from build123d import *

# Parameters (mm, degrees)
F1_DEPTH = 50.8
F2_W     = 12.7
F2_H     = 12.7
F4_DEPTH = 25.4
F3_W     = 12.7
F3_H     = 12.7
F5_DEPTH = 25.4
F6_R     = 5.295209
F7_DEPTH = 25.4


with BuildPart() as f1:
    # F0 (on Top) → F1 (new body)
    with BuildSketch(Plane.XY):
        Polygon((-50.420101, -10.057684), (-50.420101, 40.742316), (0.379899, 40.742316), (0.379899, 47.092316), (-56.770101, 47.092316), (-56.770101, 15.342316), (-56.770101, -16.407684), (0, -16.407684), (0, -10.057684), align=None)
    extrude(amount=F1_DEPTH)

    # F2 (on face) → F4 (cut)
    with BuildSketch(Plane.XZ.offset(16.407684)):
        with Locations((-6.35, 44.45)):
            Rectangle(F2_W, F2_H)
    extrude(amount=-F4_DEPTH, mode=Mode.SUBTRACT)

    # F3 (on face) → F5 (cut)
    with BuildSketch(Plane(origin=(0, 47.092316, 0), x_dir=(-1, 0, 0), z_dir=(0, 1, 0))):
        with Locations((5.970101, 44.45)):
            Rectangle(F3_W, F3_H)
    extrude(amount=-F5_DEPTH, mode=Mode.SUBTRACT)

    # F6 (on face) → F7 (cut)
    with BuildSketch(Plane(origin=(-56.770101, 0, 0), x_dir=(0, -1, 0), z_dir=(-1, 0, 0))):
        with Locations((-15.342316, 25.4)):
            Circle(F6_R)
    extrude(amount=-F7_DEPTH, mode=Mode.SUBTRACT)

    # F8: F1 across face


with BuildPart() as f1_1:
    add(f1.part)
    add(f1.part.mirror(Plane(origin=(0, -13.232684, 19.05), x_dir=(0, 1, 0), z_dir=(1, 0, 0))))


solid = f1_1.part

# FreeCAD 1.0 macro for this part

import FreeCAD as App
import Part
import Sketcher

V = App.Vector
Q = App.Units.Quantity


def add_polygon(sketch, points):
    """Adds a closed chain of lines whose ends are joined by coincident constraints."""
    first, n = sketch.GeometryCount, len(points)
    for a, b in zip(points, points[1:] + points[:1]):
        sketch.addGeometry(Part.LineSegment(App.Vector(*a, 0), App.Vector(*b, 0)), False)
    for i in range(n):
        sketch.addConstraint(Sketcher.Constraint("Coincident", first + i, 2, first + (i + 1) % n, 1))

doc = App.newDocument("Part")
body = doc.addObject("PartDesign::Body", "Body")

sketch1 = body.newObject("Sketcher::SketchObject", "Sketch")
sketch1.AttachmentSupport = (doc.getObject("XY_Plane"), [""])
sketch1.MapMode = "FlatFace"
add_polygon(sketch1, [(-50.420101, -10.057684), (-50.420101, 40.742316), (0.379899, 40.742316), (0.379899, 47.092316), (-56.770101, 47.092316), (-56.770101, -16.407684), (0, -16.407684), (0, -10.057684)])
sketch1.addConstraint([
    Sketcher.Constraint("Vertical", 0),
    Sketcher.Constraint("Horizontal", 1),
    Sketcher.Constraint("Vertical", 2),
    Sketcher.Constraint("Horizontal", 3),
    Sketcher.Constraint("Vertical", 4),
    Sketcher.Constraint("Horizontal", 5),
    Sketcher.Constraint("Vertical", 6),
    Sketcher.Constraint("Horizontal", 7),
    Sketcher.Constraint("PointOnObject", 5, 2, -2),
    Sketcher.Constraint("Equal", 1, 0),
    Sketcher.Constraint("Equal", 2, 6),
    Sketcher.Constraint("DistanceX", 1, 1, 1, 2, Q("2 in")),
    Sketcher.Constraint("DistanceY", 4, 2, 4, 1, Q("2.5 in")),
    Sketcher.Constraint("DistanceX", 3, 2, 3, 1, Q("2.25 in")),
    Sketcher.Constraint("DistanceX", 5, 1, 5, 2, 56.770101),
    Sketcher.Constraint("DistanceY", -1, 1, 0, 2, 40.742316),
])
pad1 = body.newObject("PartDesign::Pad", "Pad")
pad1.Profile = sketch1
pad1.Length = Q("2 in")

sketch2 = body.newObject("Sketcher::SketchObject", "Sketch001")
sketch2.AttachmentSupport = (doc.getObject("XZ_Plane"), [""])
sketch2.MapMode = "FlatFace"
sketch2.AttachmentOffset = App.Placement(V(0, 0, 16.407684), App.Rotation())
add_polygon(sketch2, [(-12.7, 50.8), (-12.7, 38.1), (0, 38.1), (0, 50.8)])
sketch2.addConstraint([
    Sketcher.Constraint("Vertical", 0),
    Sketcher.Constraint("Horizontal", 1),
    Sketcher.Constraint("Vertical", 2),
    Sketcher.Constraint("Horizontal", 3),
    Sketcher.Constraint("PointOnObject", 1, 2, -2),
    Sketcher.Constraint("Equal", 3, 0),
    Sketcher.Constraint("DistanceX", 1, 1, 1, 2, Q("0.5 in")),
    Sketcher.Constraint("DistanceY", -1, 1, 2, 2, Q("2 in")),
])
pocket1 = body.newObject("PartDesign::Pocket", "Pocket")
pocket1.Profile = sketch2
pocket1.Length = Q("1 in")

sketch3 = body.newObject("Sketcher::SketchObject", "Sketch002")
sketch3.AttachmentSupport = (doc.getObject("XZ_Plane"), [""])
sketch3.MapMode = "FlatFace"
sketch3.AttachmentOffset = App.Placement(V(0, 0, -47.092316), App.Rotation())
add_polygon(sketch3, [(0.379899, 50.8), (0.379899, 38.1), (-12.320101, 38.1), (-12.320101, 50.8)])
sketch3.addConstraint([
    Sketcher.Constraint("Vertical", 0),
    Sketcher.Constraint("Horizontal", 1),
    Sketcher.Constraint("Vertical", 2),
    Sketcher.Constraint("Horizontal", 3),
    Sketcher.Constraint("Equal", 3, 0),
    Sketcher.Constraint("DistanceX", 1, 2, 1, 1, Q("0.5 in")),
    Sketcher.Constraint("DistanceY", -1, 1, 2, 2, Q("2 in")),
    Sketcher.Constraint("DistanceX", -1, 1, 0, 2, 0.379899),
])
pocket2 = body.newObject("PartDesign::Pocket", "Pocket001")
pocket2.Profile = sketch3
pocket2.Length = Q("1 in")
pocket2.Reversed = True

sketch4 = body.newObject("Sketcher::SketchObject", "Sketch003")
sketch4.AttachmentSupport = (doc.getObject("YZ_Plane"), [""])
sketch4.MapMode = "FlatFace"
sketch4.AttachmentOffset = App.Placement(V(0, 0, -56.770101), App.Rotation())
sketch4.addGeometry(Part.Circle(V(15.342316, 25.4, 0), V(0, 0, 1), 5.295209), False)
sketch4.addConstraint([
    Sketcher.Constraint("DistanceY", -1, 1, 0, 3, Q("1 in")),
    Sketcher.Constraint("Diameter", 0, 10.590418),
    Sketcher.Constraint("DistanceX", -1, 1, 0, 3, 15.342316),
])
pocket3 = body.newObject("PartDesign::Pocket", "Pocket002")
pocket3.Profile = sketch4
pocket3.Length = Q("1 in")
pocket3.Reversed = True
body2 = doc.addObject("PartDesign::Body", "Body001")
doc.recompute()

body2.BaseFeature = body
doc.recompute()

mirroring = doc.addObject("Part::Mirroring", "Mirroring")
mirroring.Source = body
mirroring.Base = V(0, -13.232684, 19.05)
mirroring.Normal = V(1, 0, 0)
body3 = doc.addObject("PartDesign::Body", "Body002")
body3.BaseFeature = mirroring
boolean = body2.newObject("PartDesign::Boolean", "Boolean")
boolean.Type = "Fuse"
boolean.addObjects([body3])
doc.recompute()
mirroring.Visibility = False

doc.recompute()
